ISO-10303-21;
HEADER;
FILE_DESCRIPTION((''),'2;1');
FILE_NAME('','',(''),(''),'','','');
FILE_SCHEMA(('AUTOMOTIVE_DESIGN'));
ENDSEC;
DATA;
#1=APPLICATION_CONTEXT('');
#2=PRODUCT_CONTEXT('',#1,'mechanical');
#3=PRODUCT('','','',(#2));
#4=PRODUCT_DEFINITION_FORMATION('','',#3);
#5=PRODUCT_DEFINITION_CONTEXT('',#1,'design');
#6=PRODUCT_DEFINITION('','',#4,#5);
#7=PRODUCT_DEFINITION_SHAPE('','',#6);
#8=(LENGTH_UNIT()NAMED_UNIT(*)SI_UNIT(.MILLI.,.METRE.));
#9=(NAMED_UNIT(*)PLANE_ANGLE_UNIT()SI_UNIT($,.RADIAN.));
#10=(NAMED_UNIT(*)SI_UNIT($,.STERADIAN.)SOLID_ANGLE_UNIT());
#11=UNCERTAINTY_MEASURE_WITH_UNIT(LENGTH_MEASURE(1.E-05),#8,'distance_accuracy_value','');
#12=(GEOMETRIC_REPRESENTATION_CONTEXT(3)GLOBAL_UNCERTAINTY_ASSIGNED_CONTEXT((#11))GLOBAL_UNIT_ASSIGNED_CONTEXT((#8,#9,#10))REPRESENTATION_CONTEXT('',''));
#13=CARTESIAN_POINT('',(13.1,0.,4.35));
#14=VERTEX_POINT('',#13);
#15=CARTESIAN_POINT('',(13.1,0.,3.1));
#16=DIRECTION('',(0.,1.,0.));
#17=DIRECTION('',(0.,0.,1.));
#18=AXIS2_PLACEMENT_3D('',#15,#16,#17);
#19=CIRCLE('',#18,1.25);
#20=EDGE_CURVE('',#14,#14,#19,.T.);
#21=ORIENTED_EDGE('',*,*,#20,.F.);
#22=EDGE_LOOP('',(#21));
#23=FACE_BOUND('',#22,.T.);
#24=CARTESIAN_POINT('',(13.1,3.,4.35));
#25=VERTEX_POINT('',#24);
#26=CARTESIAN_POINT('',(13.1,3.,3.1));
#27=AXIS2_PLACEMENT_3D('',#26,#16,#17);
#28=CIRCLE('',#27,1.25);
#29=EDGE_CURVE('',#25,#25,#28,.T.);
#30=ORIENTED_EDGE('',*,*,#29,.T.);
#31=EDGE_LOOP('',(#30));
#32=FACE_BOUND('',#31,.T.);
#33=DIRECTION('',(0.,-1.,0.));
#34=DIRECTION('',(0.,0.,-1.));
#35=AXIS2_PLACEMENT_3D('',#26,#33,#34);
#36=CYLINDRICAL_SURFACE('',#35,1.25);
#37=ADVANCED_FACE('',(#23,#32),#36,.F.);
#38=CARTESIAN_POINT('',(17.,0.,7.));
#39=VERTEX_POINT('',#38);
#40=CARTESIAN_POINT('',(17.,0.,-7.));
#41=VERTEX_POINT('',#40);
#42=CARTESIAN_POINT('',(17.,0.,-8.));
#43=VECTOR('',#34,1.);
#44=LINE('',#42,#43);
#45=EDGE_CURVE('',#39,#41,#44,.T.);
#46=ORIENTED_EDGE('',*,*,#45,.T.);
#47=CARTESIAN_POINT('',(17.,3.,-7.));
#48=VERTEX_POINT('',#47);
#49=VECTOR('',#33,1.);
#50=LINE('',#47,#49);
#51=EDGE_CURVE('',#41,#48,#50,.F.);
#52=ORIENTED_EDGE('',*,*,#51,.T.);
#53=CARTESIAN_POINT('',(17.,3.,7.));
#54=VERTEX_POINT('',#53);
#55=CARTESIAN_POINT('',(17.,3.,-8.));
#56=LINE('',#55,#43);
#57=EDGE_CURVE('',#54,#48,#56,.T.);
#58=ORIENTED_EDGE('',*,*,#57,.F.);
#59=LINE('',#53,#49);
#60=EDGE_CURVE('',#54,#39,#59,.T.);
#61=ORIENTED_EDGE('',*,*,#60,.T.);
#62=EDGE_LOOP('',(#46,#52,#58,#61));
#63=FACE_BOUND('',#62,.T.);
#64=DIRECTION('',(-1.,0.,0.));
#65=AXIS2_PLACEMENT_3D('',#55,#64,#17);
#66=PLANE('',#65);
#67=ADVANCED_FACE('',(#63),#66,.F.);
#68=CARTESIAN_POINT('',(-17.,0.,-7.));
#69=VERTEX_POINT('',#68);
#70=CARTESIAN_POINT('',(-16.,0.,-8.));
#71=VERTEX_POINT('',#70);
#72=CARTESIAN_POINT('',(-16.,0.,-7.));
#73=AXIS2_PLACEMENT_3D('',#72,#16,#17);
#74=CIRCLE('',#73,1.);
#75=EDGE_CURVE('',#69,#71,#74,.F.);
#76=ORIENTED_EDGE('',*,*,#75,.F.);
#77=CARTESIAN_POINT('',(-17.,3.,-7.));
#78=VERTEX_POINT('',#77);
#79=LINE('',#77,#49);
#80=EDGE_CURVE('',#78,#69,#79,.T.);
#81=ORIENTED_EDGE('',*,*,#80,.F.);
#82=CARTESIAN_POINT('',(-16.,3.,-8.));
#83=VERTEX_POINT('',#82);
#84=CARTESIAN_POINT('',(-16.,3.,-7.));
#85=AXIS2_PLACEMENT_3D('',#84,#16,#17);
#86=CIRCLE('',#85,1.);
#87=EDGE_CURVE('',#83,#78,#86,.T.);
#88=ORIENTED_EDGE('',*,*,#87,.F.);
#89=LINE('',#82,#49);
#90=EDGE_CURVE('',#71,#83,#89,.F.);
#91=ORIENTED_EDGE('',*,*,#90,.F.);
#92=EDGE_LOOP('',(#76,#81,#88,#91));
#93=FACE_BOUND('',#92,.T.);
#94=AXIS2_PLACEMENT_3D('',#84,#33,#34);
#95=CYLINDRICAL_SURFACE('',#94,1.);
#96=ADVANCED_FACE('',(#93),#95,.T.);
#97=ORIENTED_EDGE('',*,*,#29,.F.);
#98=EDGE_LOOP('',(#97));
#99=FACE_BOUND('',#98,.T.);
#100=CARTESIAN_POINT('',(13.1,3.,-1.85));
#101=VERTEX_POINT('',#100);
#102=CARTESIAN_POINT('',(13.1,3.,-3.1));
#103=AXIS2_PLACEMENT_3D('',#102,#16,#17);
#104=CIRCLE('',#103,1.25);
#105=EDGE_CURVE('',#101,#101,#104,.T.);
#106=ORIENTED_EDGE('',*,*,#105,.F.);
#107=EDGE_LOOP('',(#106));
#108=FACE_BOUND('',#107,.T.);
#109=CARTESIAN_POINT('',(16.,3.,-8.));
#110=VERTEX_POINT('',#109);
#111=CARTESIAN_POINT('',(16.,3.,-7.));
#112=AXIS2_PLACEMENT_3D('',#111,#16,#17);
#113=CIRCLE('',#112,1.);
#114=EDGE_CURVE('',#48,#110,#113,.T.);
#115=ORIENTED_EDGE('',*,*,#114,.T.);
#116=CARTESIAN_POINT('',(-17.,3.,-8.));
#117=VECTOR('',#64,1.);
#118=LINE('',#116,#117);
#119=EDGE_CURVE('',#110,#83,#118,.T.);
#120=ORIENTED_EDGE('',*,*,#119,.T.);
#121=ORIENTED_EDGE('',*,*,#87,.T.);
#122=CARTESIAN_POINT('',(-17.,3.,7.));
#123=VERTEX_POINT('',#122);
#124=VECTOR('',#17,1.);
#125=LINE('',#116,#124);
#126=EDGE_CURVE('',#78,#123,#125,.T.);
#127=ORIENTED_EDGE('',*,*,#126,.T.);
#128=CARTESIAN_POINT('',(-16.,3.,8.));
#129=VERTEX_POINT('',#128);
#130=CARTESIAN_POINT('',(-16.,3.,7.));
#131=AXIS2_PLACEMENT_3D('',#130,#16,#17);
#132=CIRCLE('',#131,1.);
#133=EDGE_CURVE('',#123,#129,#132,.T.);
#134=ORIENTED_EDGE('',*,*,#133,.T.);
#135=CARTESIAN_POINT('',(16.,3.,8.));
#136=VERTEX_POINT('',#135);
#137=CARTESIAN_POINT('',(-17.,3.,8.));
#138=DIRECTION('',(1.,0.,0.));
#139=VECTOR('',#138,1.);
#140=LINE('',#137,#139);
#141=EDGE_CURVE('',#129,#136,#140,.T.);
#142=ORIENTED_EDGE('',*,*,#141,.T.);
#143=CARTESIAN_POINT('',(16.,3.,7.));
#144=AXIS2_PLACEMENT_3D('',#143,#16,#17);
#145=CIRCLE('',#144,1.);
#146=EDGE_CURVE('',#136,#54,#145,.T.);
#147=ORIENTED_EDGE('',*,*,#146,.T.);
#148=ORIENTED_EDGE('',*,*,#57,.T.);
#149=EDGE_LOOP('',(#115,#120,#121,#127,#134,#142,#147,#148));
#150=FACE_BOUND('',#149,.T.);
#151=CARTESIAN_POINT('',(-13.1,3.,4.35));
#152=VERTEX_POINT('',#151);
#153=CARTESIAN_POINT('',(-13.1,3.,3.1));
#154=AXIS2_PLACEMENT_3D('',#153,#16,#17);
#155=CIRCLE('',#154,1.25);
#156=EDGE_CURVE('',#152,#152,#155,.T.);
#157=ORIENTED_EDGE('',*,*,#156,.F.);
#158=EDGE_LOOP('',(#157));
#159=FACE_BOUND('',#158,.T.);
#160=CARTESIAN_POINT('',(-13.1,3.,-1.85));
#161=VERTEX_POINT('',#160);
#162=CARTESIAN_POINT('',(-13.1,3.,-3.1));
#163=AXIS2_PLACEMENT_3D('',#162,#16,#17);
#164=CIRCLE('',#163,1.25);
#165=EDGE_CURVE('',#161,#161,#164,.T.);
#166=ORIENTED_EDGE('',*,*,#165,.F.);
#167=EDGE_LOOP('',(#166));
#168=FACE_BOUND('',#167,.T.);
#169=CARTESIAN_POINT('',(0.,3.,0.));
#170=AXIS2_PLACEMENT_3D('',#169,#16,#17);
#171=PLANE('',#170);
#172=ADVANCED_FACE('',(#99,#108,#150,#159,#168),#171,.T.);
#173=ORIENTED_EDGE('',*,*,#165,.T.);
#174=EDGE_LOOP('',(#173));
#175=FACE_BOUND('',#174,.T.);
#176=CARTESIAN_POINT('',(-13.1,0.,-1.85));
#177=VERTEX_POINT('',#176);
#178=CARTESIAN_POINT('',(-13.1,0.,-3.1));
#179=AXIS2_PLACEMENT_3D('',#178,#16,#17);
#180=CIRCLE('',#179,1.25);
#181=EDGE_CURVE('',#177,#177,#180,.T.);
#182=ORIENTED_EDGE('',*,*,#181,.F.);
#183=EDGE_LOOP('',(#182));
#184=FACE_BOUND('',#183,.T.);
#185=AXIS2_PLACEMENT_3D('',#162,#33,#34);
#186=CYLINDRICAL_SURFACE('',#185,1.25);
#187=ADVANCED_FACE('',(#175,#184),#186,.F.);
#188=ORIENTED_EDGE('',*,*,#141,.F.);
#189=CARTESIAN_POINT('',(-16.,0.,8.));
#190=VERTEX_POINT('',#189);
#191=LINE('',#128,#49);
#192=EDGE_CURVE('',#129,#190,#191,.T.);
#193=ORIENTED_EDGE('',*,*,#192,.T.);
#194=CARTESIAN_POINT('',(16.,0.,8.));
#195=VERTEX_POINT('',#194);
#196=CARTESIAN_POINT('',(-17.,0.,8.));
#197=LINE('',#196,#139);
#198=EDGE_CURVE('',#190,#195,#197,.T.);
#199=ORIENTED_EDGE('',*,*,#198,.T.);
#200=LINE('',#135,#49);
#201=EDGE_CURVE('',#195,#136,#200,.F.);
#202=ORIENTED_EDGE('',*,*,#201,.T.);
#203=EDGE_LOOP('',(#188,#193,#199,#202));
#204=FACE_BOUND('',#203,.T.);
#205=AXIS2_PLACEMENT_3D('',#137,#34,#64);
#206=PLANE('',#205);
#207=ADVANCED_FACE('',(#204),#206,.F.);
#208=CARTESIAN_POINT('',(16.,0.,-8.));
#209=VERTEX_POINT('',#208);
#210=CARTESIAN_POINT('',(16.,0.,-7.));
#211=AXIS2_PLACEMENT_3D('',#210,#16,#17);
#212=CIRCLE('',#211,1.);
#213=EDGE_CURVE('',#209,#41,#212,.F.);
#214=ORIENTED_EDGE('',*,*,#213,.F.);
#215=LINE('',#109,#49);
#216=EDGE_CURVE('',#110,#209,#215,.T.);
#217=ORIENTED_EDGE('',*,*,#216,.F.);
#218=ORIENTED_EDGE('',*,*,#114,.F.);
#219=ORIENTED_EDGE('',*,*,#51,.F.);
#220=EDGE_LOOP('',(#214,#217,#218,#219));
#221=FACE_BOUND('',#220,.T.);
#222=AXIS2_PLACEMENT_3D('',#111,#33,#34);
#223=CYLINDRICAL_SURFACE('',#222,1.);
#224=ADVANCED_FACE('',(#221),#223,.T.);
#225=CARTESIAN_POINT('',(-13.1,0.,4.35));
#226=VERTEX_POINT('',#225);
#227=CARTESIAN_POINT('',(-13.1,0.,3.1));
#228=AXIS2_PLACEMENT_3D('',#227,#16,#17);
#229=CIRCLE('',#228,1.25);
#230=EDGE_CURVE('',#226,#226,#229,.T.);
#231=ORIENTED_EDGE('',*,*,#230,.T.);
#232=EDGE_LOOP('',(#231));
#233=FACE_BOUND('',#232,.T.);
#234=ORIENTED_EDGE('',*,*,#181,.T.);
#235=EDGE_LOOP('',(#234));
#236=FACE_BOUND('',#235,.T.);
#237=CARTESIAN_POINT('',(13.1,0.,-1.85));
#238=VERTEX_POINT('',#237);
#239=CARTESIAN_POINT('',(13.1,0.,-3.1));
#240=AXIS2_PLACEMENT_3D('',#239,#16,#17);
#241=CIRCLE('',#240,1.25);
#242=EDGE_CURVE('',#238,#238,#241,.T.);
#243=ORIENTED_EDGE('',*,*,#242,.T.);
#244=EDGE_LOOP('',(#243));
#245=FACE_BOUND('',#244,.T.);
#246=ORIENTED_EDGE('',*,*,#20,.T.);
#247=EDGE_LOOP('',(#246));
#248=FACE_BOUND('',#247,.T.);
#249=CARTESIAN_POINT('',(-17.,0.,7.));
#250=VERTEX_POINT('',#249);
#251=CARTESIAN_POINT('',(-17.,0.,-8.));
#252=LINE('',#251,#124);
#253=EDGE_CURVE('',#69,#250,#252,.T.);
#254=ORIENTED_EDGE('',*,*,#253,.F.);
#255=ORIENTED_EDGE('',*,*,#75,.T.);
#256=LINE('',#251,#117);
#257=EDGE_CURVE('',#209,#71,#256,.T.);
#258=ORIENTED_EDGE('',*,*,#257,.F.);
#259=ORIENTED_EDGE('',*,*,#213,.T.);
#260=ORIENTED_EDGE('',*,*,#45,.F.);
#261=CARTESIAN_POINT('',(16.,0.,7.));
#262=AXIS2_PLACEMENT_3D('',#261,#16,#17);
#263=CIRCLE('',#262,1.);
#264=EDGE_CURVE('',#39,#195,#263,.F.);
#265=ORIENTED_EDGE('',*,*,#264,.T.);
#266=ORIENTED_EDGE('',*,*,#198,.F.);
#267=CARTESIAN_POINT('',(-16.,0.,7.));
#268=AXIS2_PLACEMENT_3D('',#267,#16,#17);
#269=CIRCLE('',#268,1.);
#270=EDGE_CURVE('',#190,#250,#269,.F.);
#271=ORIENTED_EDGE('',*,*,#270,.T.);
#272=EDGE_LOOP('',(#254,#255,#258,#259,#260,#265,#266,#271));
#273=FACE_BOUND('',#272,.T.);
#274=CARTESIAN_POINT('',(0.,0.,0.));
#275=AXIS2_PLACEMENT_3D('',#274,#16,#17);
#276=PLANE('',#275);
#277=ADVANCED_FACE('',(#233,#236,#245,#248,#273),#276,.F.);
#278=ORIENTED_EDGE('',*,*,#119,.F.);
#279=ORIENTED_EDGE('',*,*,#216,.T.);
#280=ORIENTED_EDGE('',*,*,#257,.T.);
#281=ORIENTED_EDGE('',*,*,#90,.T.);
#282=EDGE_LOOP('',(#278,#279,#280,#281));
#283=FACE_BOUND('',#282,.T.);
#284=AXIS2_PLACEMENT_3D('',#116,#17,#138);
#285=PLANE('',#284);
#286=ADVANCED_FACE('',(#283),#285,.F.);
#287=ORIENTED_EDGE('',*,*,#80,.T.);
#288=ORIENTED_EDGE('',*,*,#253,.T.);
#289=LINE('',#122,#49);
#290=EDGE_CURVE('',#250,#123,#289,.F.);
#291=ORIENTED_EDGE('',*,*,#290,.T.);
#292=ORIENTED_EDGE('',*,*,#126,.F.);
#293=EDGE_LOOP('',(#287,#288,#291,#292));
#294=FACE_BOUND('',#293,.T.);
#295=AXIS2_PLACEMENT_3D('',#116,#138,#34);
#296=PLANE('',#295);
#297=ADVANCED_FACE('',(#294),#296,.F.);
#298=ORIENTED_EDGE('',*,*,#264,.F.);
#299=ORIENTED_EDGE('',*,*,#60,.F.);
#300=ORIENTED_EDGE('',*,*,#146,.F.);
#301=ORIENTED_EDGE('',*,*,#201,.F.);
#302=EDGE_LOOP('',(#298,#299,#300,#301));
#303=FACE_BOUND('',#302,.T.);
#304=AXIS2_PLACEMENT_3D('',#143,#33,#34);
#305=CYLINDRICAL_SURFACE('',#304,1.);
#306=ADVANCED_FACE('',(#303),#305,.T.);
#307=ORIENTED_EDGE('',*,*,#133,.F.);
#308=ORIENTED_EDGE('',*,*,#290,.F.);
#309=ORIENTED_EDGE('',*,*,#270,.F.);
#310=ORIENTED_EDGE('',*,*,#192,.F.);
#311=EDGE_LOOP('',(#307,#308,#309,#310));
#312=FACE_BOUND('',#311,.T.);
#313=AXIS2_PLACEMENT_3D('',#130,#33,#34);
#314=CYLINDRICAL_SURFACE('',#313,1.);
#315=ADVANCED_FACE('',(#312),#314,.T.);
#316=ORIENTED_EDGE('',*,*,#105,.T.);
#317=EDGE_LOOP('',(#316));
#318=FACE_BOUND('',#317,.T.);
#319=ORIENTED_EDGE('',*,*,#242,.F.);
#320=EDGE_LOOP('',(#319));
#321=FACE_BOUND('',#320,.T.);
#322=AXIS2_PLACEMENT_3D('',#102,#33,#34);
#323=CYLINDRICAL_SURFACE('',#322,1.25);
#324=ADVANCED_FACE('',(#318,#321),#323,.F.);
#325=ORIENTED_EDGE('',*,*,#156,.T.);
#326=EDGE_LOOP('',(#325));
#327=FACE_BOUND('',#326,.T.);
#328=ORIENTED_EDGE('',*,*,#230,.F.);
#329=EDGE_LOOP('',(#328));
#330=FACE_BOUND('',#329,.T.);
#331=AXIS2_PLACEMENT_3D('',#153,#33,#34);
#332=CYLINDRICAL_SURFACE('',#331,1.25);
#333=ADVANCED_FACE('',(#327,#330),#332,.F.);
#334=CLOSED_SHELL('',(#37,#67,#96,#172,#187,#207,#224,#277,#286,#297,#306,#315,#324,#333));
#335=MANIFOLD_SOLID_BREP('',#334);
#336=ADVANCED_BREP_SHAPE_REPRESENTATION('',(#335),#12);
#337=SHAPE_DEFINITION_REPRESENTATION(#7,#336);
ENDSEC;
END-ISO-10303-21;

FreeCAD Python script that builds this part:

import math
import FreeCAD as App
import Part
import Sketcher

V = App.Vector
Q = App.Units.Quantity


def edges_at(feature, points):
    """Names of the edges that pass closest to the given points."""
    edges = feature.Shape.Edges
    near = lambda p: min(range(len(edges)), key=lambda i: edges[i].distToShape(Part.Vertex(*p))[0])
    return sorted({f"Edge{near(p) + 1}" for p in points})


def add_polygon(sketch, points):
    """Adds a closed chain of lines whose ends are joined by coincident constraints."""
    first, n = sketch.GeometryCount, len(points)
    for a, b in zip(points, points[1:] + points[:1]):
        sketch.addGeometry(Part.LineSegment(App.Vector(*a, 0), App.Vector(*b, 0)), False)
    for i in range(n):
        sketch.addConstraint(Sketcher.Constraint("Coincident", first + i, 2, first + (i + 1) % n, 1))

doc = App.newDocument("Part")
body = doc.addObject("PartDesign::Body", "Body")

sketch1 = doc.addObject("Sketcher::SketchObject", "Sketch")
body.addObject(sketch1)
sketch1.AttachmentSupport = (doc.XZ_Plane, [""])
sketch1.MapMode = "FlatFace"
add_polygon(sketch1, [(-17, -8), (-17, 8), (17, 8), (17, -8)])
sketch1.addGeometry(Part.Circle(V(-13.1, 3.1, 0), V(0, 0, 1), 1.2), False)
sketch1.addGeometry(Part.Circle(V(13.1, 3.1, 0), V(0, 0, 1), 1.2), False)
sketch1.addGeometry(Part.ArcOfCircle(Part.Circle(V(-13.1, -3.1, 0), V(0, 0, 1), 1.2), math.radians(-90), math.radians(90)), False)
sketch1.addGeometry(Part.ArcOfCircle(Part.Circle(V(-13.1, -3.1, 0), V(0, 0, 1), 1.2), math.radians(90), math.radians(270)), False)
sketch1.addGeometry(Part.Circle(V(13.1, -3.1, 0), V(0, 0, 1), 1.2), False)
sketch1.addConstraint(Sketcher.Constraint("Tangent", 6, 1, 7, 2))
sketch1.addConstraint(Sketcher.Constraint("Coincident", 7, 1, 6, 2))
sketch1.addConstraint(Sketcher.Constraint("Vertical", 0))
sketch1.addConstraint(Sketcher.Constraint("Horizontal", 1))
sketch1.addConstraint(Sketcher.Constraint("Vertical", 2))
sketch1.addConstraint(Sketcher.Constraint("Horizontal", 3))
sketch1.addConstraint(Sketcher.Constraint("Equal", 4, 5))
sketch1.addConstraint(Sketcher.Constraint("Equal", 5, 6))
sketch1.addConstraint(Sketcher.Constraint("Equal", 7, 8))
sketch1.addConstraint(Sketcher.Constraint("Symmetric", 5, 3, 6, 3, -1, 1))
sketch1.addConstraint(Sketcher.Constraint("Symmetric", 4, 3, 8, 3, -1, 1))
sketch1.addConstraint(Sketcher.Constraint("Symmetric", 0, 2, 2, 2, -1, 1))
sketch1.addConstraint(Sketcher.Constraint("Symmetric", 4, 3, 5, 3, -2))
sketch1.addConstraint(Sketcher.Constraint("Vertical", 7, 3, 6, 1))
sketch1.addConstraint(Sketcher.Constraint("Vertical", 6, 1, 7, 1))
sketch1.addConstraint(Sketcher.Constraint("Diameter", 4, Q("2.5 mm")))
sketch1.addConstraint(Sketcher.Constraint("DistanceX", 1, 1, 1, 2, Q("34 mm")))
sketch1.addConstraint(Sketcher.Constraint("DistanceY", 0, 1, 0, 2, Q("16 mm")))
sketch1.addConstraint(Sketcher.Constraint("DistanceX", 4, 3, -1, 1, Q("13.1 mm")))
sketch1.addConstraint(Sketcher.Constraint("DistanceY", -1, 1, 4, 3, Q("3.1 mm")))
pad1 = doc.addObject("PartDesign::Pad", "Pad")
body.addObject(pad1)
pad1.Profile = sketch1
pad1.Length = 3
pad1.Reversed = True
doc.recompute()

fillet = doc.addObject("PartDesign::Fillet", "Fillet")
body.addObject(fillet)
fillet.Base = (pad1, edges_at(pad1, [
    (-17, 1.5, -8),
    (17, 1.5, -8),
    (17, 1.5, 8),
    (-17, 1.5, 8),
]))
fillet.Radius = 1

doc.recompute()
